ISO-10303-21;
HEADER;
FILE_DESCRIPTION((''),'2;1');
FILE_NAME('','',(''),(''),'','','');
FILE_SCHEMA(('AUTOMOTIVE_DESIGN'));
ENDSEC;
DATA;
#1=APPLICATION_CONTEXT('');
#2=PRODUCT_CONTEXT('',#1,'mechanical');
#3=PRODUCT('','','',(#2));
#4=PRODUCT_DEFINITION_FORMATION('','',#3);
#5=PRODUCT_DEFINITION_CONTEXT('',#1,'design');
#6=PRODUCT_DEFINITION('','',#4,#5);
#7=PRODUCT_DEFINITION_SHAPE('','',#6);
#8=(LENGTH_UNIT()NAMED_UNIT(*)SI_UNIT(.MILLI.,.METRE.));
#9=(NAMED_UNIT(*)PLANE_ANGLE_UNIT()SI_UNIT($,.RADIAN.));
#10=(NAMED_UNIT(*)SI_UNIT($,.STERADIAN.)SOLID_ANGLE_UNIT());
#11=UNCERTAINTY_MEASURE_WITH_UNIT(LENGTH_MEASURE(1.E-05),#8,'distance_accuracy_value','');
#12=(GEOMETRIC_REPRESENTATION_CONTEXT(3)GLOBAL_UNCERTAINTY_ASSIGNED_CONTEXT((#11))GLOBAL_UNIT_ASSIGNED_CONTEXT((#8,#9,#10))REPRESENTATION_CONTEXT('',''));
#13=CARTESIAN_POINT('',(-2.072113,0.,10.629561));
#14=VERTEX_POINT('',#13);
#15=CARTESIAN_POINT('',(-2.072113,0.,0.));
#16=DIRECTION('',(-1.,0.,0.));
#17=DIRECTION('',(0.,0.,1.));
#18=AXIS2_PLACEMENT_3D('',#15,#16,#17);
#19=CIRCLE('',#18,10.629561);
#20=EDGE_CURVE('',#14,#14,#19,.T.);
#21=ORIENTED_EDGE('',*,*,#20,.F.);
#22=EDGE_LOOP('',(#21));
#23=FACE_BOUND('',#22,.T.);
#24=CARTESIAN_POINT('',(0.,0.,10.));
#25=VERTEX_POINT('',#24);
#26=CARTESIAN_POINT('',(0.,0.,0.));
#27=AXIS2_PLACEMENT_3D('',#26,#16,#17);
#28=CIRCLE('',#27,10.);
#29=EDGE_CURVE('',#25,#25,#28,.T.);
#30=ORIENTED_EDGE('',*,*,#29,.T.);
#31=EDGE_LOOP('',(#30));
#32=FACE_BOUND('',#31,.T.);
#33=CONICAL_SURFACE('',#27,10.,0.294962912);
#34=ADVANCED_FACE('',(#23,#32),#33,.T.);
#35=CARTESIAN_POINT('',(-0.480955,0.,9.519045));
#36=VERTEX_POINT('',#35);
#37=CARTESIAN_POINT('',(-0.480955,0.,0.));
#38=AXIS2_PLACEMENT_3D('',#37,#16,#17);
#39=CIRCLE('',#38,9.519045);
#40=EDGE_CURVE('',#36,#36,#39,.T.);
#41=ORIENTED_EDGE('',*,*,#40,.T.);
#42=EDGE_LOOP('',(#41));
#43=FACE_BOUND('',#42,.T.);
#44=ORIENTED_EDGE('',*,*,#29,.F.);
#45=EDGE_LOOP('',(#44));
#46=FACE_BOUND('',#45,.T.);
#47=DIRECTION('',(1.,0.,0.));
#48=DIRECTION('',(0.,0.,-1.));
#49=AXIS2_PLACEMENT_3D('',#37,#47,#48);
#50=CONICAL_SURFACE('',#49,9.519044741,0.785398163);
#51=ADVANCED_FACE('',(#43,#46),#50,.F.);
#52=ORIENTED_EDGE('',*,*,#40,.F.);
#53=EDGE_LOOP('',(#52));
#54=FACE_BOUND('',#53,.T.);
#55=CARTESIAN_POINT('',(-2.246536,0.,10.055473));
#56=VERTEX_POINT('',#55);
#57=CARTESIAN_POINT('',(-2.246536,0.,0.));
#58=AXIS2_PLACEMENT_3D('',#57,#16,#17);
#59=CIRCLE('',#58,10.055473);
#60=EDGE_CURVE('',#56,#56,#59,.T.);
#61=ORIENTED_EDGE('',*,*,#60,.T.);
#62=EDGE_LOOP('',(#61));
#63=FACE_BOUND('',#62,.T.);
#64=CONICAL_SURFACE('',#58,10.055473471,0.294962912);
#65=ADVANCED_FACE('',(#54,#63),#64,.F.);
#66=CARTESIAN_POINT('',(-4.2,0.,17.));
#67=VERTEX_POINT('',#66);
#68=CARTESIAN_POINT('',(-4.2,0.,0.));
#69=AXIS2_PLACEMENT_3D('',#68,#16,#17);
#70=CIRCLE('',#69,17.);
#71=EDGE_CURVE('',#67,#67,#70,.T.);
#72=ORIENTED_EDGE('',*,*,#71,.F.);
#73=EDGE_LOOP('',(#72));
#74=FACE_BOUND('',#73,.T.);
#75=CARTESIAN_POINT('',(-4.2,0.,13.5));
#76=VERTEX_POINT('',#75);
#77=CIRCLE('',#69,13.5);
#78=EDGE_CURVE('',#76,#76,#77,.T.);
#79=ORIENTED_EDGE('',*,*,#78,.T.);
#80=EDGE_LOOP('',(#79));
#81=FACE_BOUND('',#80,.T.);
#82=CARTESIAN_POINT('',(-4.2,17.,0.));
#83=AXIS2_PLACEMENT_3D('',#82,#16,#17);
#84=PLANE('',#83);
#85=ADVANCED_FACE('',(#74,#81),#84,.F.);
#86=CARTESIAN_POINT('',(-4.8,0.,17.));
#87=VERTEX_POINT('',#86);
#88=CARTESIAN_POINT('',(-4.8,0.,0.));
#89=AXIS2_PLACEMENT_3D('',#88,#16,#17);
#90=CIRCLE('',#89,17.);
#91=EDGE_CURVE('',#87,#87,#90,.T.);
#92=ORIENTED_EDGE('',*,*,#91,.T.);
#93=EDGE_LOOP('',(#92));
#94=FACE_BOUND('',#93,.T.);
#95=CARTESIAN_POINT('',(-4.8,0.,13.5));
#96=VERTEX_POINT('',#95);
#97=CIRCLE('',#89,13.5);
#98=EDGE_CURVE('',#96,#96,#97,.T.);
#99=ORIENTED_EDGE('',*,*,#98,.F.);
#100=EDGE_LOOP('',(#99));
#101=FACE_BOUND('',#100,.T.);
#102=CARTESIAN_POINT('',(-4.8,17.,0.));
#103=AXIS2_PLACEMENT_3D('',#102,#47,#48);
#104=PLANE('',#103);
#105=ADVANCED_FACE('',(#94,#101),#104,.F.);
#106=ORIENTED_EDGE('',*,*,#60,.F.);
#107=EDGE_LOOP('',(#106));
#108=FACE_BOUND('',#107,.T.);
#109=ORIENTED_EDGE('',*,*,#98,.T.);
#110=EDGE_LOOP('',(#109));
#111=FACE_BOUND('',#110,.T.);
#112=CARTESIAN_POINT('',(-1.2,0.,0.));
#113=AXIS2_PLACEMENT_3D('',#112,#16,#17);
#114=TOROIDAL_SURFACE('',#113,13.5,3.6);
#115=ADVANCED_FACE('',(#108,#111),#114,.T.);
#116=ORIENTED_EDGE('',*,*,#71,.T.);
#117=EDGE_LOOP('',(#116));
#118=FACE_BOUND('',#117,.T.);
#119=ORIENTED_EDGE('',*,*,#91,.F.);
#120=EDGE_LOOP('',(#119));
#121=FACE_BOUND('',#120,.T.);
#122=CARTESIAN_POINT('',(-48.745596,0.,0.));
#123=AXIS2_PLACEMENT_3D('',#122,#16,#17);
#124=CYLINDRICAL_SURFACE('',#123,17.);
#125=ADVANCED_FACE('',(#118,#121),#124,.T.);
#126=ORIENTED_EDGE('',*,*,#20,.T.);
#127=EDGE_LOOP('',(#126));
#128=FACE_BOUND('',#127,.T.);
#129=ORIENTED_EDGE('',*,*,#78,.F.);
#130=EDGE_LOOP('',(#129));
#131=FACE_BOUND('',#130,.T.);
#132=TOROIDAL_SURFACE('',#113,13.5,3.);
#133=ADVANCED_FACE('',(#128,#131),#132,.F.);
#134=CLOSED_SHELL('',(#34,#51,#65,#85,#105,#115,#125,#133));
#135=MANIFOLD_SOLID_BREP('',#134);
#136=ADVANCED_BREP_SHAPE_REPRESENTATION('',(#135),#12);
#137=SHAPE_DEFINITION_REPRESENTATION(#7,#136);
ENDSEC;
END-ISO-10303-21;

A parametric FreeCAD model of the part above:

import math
import FreeCAD as App
import Part
import Sketcher

V = App.Vector
Q = App.Units.Quantity

doc = App.newDocument("Part")
body = doc.addObject("PartDesign::Body", "Body")

# Sketch on XY plane
sketch1 = body.newObject("Sketcher::SketchObject", "Sketch")
sketch1.AttachmentSupport = (doc.getObject("XY_Plane"), [""])
sketch1.MapMode = "FlatFace"
sketch1.addGeometry(Part.LineSegment(V(-4.2, 13.5, 0), V(-4.2, 17, 0)), False)
sketch1.addGeometry(Part.LineSegment(V(-4.2, 17, 0), V(-4.8, 17, 0)), False)
sketch1.addGeometry(Part.LineSegment(V(-4.8, 17, 0), V(-4.8, 13.5, 0)), False)
sketch1.addGeometry(Part.ArcOfCircle(Part.Circle(V(-1.2, 13.5, 0), V(0, 0, 1), 3.6), math.radians(180), math.radians(253.09987)), False)
sketch1.addGeometry(Part.LineSegment(V(-2.246536, 10.055473, 0), V(-0.480955, 9.519045, 0)), False)
sketch1.addGeometry(Part.LineSegment(V(-0.480955, 9.519045, 0), V(0, 10, 0)), False)
sketch1.addGeometry(Part.LineSegment(V(0, 10, 0), V(-2.072113, 10.629561, 0)), False)
sketch1.addGeometry(Part.ArcOfCircle(Part.Circle(V(-1.2, 13.5, 0), V(0, 0, 1), 3), math.radians(180), math.radians(253.09987)), False)
sketch1.addConstraint(Sketcher.Constraint("Coincident", 0, 2, 1, 1))
sketch1.addConstraint(Sketcher.Constraint("Coincident", 1, 2, 2, 1))
sketch1.addConstraint(Sketcher.Constraint("Tangent", 2, 2, 3, 1))
sketch1.addConstraint(Sketcher.Constraint("Tangent", 3, 2, 4, 1))
sketch1.addConstraint(Sketcher.Constraint("Coincident", 4, 2, 5, 1))
sketch1.addConstraint(Sketcher.Constraint("Coincident", 5, 2, 6, 1))
sketch1.addConstraint(Sketcher.Constraint("Tangent", 6, 2, 7, 2))
sketch1.addConstraint(Sketcher.Constraint("Tangent", 7, 1, 0, 1))
sketch1.addConstraint(Sketcher.Constraint("Vertical", 0))
sketch1.addConstraint(Sketcher.Constraint("Horizontal", 1))
sketch1.addConstraint(Sketcher.Constraint("Vertical", 2))
sketch1.addConstraint(Sketcher.Constraint("Coincident", 7, 3, 3, 3))
sketch1.addConstraint(Sketcher.Constraint("PointOnObject", 5, 2, -2))
sketch1.addConstraint(Sketcher.Constraint("Parallel", 4, 6))
sketch1.addConstraint(Sketcher.Constraint("Radius", 7, 3.0))
sketch1.addConstraint(Sketcher.Constraint("Radius", 3, 3.6))
sketch1.addConstraint(Sketcher.Constraint("Angle", 5, Q("45 deg")))
sketch1.addConstraint(Sketcher.Constraint("DistanceY", 0, 1, 0, 2, 3.5))
sketch1.addConstraint(Sketcher.Constraint("DistanceY", -1, 1, 0, 2, 17.0))
sketch1.addConstraint(Sketcher.Constraint("DistanceY", -1, 1, 5, 2, 10.0))
sketch1.addConstraint(Sketcher.Constraint("DistanceX", 3, 3, -1, 1, 1.2))
revolution = body.newObject("PartDesign::Revolution", "Revolution")
revolution.Profile = sketch1
revolution.ReferenceAxis = (sketch1, ["H_Axis"])
revolution.Angle = 360

doc.recompute()
